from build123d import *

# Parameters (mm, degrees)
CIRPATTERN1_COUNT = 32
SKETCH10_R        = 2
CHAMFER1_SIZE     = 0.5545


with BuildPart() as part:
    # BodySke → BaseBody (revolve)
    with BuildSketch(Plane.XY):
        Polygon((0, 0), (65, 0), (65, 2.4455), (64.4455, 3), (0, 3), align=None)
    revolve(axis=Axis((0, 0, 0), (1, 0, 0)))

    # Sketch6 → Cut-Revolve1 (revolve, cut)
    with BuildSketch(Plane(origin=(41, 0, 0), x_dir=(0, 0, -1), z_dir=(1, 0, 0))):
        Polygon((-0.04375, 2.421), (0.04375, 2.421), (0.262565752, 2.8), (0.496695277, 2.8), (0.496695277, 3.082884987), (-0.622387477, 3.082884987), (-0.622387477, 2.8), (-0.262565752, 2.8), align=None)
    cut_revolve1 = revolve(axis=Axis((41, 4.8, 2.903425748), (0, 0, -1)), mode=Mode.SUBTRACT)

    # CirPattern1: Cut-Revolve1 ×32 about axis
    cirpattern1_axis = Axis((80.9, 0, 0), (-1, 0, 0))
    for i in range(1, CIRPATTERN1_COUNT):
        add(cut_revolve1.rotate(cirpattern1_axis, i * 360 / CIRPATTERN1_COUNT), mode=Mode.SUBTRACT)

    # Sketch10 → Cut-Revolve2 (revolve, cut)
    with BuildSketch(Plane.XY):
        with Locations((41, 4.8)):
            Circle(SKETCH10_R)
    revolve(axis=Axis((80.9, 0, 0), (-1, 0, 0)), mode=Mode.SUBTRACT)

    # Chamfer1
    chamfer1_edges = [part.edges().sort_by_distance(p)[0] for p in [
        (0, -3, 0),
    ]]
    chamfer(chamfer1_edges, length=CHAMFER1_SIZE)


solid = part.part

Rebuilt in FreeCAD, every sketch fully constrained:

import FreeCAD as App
import Part
import Sketcher
from FreeCAD import Vector
Q = App.Units.Quantity


def edges_at(feature, points):
    """Names of the edges that pass closest to the given points."""
    edges = feature.Shape.Edges
    near = lambda p: min(range(len(edges)), key=lambda i: edges[i].distToShape(Part.Vertex(*p))[0])
    return sorted({f"Edge{near(p) + 1}" for p in points})

doc = App.newDocument("Part")
params = doc.addObject("Spreadsheet::Sheet", "Params")
for row, (alias, value) in enumerate([
    ("sketch1_width", "65 mm"),
    ("sketch1_height", "3 mm"),
    ("revolution_angle", "360 deg"),
    ("groove_angle", "360 deg"),
    ("sketch3_diameter", "4 mm"),
    ("groove2_angle", "360 deg"),
    ("chamfer_size", "0.5545 mm"),
], start=1):
    params.set(f"A{row}", alias)
    params.set(f"B{row}", "=" + value)
    params.setAlias(f"B{row}", alias)

body = doc.addObject("PartDesign::Body", "Body")

# Sketch on XY plane
sketch1 = body.newObject("Sketcher::SketchObject", "Sketch")
sketch1.AttachmentSupport = (doc.getObject("XY_Plane"), [""])
sketch1.MapMode = "FlatFace"
sketch1.addGeometry(Part.LineSegment(Vector(0, 0, 0), Vector(65, 0, 0)), False)
sketch1.addGeometry(Part.LineSegment(Vector(65, 0, 0), Vector(65, 2.4455, 0)), False)
sketch1.addGeometry(Part.LineSegment(Vector(65, 2.4455, 0), Vector(64.4455, 3, 0)), False)
sketch1.addGeometry(Part.LineSegment(Vector(64.4455, 3, 0), Vector(0, 3, 0)), False)
sketch1.addGeometry(Part.LineSegment(Vector(0, 3, 0), Vector(0, 0, 0)), False)
sketch1.addConstraint(Sketcher.Constraint("Coincident", 0, 2, 1, 1))
sketch1.addConstraint(Sketcher.Constraint("Coincident", 1, 2, 2, 1))
sketch1.addConstraint(Sketcher.Constraint("Coincident", 2, 2, 3, 1))
sketch1.addConstraint(Sketcher.Constraint("Coincident", 3, 2, 4, 1))
sketch1.addConstraint(Sketcher.Constraint("Coincident", 4, 2, 0, 1))
sketch1.addConstraint(Sketcher.Constraint("Horizontal", 0))
sketch1.addConstraint(Sketcher.Constraint("Vertical", 1))
sketch1.addConstraint(Sketcher.Constraint("Horizontal", 3))
sketch1.addConstraint(Sketcher.Constraint("Vertical", 4))
sketch1.addConstraint(Sketcher.Constraint("Coincident", 4, 2, -1, 1))
sketch1.addConstraint(Sketcher.Constraint("DistanceX", 0, 1, 0, 2, 65.0))
sketch1.addConstraint(Sketcher.Constraint("DistanceY", 4, 2, 4, 1, 3.0))
sketch1.addConstraint(Sketcher.Constraint("Angle", 2, Q("135 deg")))
sketch1.addConstraint(Sketcher.Constraint("DistanceX", 3, 2, 3, 1, 64.4455))
sketch1.setExpression("Constraints[10]", "Params.sketch1_width")
sketch1.setExpression("Constraints[11]", "Params.sketch1_height")
revolution = body.newObject("PartDesign::Revolution", "Revolution")
revolution.Profile = sketch1
revolution.ReferenceAxis = (sketch1, ["H_Axis"])
revolution.setExpression("Angle", "Params.revolution_angle")

# Sketch on YZ plane
sketch2 = body.newObject("Sketcher::SketchObject", "Sketch001")
sketch2.AttachmentSupport = (doc.getObject("YZ_Plane"), [""])
sketch2.MapMode = "FlatFace"
sketch2.AttachmentOffset = App.Placement(Vector(0, 0, 41), App.Rotation())
sketch2.addGeometry(Part.LineSegment(Vector(2.421, 0.04375, 0), Vector(2.421, -0.04375, 0)), False)
sketch2.addGeometry(Part.LineSegment(Vector(2.421, -0.04375, 0), Vector(2.8, -0.262566, 0)), False)
sketch2.addGeometry(Part.LineSegment(Vector(2.8, -0.262566, 0), Vector(2.8, -0.496695, 0)), False)
sketch2.addGeometry(Part.LineSegment(Vector(2.8, -0.496695, 0), Vector(3.082885, -0.496695, 0)), False)
sketch2.addGeometry(Part.LineSegment(Vector(3.082885, -0.496695, 0), Vector(3.082885, 0.622387, 0)), False)
sketch2.addGeometry(Part.LineSegment(Vector(3.082885, 0.622387, 0), Vector(2.8, 0.622387, 0)), False)
sketch2.addGeometry(Part.LineSegment(Vector(2.8, 0.622387, 0), Vector(2.8, 0.262566, 0)), False)
sketch2.addGeometry(Part.LineSegment(Vector(2.8, 0.262566, 0), Vector(2.421, 0.04375, 0)), False)
sketch2.addGeometry(Part.LineSegment(Vector(4.8, 0.622387, 0), Vector(4.8, -0.496695, 0)), True)  # axis
sketch2.addConstraint(Sketcher.Constraint("Coincident", 0, 2, 1, 1))
sketch2.addConstraint(Sketcher.Constraint("Coincident", 1, 2, 2, 1))
sketch2.addConstraint(Sketcher.Constraint("Coincident", 2, 2, 3, 1))
sketch2.addConstraint(Sketcher.Constraint("Coincident", 3, 2, 4, 1))
sketch2.addConstraint(Sketcher.Constraint("Coincident", 4, 2, 5, 1))
sketch2.addConstraint(Sketcher.Constraint("Coincident", 5, 2, 6, 1))
sketch2.addConstraint(Sketcher.Constraint("Coincident", 6, 2, 7, 1))
sketch2.addConstraint(Sketcher.Constraint("Coincident", 7, 2, 0, 1))
sketch2.addConstraint(Sketcher.Constraint("Vertical", 0))
sketch2.addConstraint(Sketcher.Constraint("Vertical", 2))
sketch2.addConstraint(Sketcher.Constraint("Horizontal", 3))
sketch2.addConstraint(Sketcher.Constraint("Vertical", 4))
sketch2.addConstraint(Sketcher.Constraint("Horizontal", 5))
sketch2.addConstraint(Sketcher.Constraint("Vertical", 6))
sketch2.addConstraint(Sketcher.Constraint("Vertical", 8))
sketch2.addConstraint(Sketcher.Constraint("Symmetric", 1, 2, 6, 2, -1))
sketch2.addConstraint(Sketcher.Constraint("Horizontal", 5, 2, 8, 1))
sketch2.addConstraint(Sketcher.Constraint("Horizontal", 3, 2, 8, 2))
sketch2.addConstraint(Sketcher.Constraint("Equal", 1, 7))
sketch2.addConstraint(Sketcher.Constraint("Angle", 1, Q("-30 deg")))
sketch2.addConstraint(Sketcher.Constraint("DistanceX", 5, 2, 8, 1, 2.0))
sketch2.addConstraint(Sketcher.Constraint("DistanceX", -1, 1, 1, 2, 2.8))
sketch2.addConstraint(Sketcher.Constraint("DistanceY", 0, 2, 0, 1, 0.0875))
sketch2.addConstraint(Sketcher.Constraint("DistanceX", -1, 1, 0, 2, 2.421))
sketch2.addConstraint(Sketcher.Constraint("DistanceY", 2, 2, 2, 1, 0.23413))
sketch2.addConstraint(Sketcher.Constraint("DistanceY", 6, 2, 6, 1, 0.359822))
sketch2.addConstraint(Sketcher.Constraint("DistanceX", 3, 1, 3, 2, 0.282885))
groove = body.newObject("PartDesign::Groove", "Groove")
groove.Profile = sketch2
groove.ReferenceAxis = (sketch2, ["Axis0"])
groove.setExpression("Angle", "Params.groove_angle")
doc.recompute()

polarpattern = body.newObject("PartDesign::PolarPattern", "PolarPattern")
polarpattern.Originals = [groove]
polarpattern.Axis = (doc.getObject("X_Axis"), [""])
polarpattern.Angle = 360
polarpattern.Occurrences = 32
body.Tip = polarpattern

# Sketch on XY plane
sketch3 = body.newObject("Sketcher::SketchObject", "Sketch002")
sketch3.AttachmentSupport = (doc.getObject("XY_Plane"), [""])
sketch3.MapMode = "FlatFace"
sketch3.addGeometry(Part.Circle(Vector(41, 4.8, 0), Vector(0, 0, 1), 2), False)
sketch3.addConstraint(Sketcher.Constraint("Diameter", 0, 4.0))
sketch3.addConstraint(Sketcher.Constraint("DistanceX", -1, 1, 0, 3, 41.0))
sketch3.addConstraint(Sketcher.Constraint("DistanceY", -1, 1, 0, 3, 4.8))
sketch3.setExpression("Constraints[0]", "Params.sketch3_diameter")
groove2 = body.newObject("PartDesign::Groove", "Groove001")
groove2.Profile = sketch3
groove2.ReferenceAxis = (sketch3, ["H_Axis"])
groove2.setExpression("Angle", "Params.groove2_angle")
doc.recompute()

chamfer = body.newObject("PartDesign::Chamfer", "Chamfer")
chamfer.Base = (groove2, edges_at(groove2, [(0, -3, 0)]))
chamfer.setExpression("Size", "Params.chamfer_size")

doc.recompute()
